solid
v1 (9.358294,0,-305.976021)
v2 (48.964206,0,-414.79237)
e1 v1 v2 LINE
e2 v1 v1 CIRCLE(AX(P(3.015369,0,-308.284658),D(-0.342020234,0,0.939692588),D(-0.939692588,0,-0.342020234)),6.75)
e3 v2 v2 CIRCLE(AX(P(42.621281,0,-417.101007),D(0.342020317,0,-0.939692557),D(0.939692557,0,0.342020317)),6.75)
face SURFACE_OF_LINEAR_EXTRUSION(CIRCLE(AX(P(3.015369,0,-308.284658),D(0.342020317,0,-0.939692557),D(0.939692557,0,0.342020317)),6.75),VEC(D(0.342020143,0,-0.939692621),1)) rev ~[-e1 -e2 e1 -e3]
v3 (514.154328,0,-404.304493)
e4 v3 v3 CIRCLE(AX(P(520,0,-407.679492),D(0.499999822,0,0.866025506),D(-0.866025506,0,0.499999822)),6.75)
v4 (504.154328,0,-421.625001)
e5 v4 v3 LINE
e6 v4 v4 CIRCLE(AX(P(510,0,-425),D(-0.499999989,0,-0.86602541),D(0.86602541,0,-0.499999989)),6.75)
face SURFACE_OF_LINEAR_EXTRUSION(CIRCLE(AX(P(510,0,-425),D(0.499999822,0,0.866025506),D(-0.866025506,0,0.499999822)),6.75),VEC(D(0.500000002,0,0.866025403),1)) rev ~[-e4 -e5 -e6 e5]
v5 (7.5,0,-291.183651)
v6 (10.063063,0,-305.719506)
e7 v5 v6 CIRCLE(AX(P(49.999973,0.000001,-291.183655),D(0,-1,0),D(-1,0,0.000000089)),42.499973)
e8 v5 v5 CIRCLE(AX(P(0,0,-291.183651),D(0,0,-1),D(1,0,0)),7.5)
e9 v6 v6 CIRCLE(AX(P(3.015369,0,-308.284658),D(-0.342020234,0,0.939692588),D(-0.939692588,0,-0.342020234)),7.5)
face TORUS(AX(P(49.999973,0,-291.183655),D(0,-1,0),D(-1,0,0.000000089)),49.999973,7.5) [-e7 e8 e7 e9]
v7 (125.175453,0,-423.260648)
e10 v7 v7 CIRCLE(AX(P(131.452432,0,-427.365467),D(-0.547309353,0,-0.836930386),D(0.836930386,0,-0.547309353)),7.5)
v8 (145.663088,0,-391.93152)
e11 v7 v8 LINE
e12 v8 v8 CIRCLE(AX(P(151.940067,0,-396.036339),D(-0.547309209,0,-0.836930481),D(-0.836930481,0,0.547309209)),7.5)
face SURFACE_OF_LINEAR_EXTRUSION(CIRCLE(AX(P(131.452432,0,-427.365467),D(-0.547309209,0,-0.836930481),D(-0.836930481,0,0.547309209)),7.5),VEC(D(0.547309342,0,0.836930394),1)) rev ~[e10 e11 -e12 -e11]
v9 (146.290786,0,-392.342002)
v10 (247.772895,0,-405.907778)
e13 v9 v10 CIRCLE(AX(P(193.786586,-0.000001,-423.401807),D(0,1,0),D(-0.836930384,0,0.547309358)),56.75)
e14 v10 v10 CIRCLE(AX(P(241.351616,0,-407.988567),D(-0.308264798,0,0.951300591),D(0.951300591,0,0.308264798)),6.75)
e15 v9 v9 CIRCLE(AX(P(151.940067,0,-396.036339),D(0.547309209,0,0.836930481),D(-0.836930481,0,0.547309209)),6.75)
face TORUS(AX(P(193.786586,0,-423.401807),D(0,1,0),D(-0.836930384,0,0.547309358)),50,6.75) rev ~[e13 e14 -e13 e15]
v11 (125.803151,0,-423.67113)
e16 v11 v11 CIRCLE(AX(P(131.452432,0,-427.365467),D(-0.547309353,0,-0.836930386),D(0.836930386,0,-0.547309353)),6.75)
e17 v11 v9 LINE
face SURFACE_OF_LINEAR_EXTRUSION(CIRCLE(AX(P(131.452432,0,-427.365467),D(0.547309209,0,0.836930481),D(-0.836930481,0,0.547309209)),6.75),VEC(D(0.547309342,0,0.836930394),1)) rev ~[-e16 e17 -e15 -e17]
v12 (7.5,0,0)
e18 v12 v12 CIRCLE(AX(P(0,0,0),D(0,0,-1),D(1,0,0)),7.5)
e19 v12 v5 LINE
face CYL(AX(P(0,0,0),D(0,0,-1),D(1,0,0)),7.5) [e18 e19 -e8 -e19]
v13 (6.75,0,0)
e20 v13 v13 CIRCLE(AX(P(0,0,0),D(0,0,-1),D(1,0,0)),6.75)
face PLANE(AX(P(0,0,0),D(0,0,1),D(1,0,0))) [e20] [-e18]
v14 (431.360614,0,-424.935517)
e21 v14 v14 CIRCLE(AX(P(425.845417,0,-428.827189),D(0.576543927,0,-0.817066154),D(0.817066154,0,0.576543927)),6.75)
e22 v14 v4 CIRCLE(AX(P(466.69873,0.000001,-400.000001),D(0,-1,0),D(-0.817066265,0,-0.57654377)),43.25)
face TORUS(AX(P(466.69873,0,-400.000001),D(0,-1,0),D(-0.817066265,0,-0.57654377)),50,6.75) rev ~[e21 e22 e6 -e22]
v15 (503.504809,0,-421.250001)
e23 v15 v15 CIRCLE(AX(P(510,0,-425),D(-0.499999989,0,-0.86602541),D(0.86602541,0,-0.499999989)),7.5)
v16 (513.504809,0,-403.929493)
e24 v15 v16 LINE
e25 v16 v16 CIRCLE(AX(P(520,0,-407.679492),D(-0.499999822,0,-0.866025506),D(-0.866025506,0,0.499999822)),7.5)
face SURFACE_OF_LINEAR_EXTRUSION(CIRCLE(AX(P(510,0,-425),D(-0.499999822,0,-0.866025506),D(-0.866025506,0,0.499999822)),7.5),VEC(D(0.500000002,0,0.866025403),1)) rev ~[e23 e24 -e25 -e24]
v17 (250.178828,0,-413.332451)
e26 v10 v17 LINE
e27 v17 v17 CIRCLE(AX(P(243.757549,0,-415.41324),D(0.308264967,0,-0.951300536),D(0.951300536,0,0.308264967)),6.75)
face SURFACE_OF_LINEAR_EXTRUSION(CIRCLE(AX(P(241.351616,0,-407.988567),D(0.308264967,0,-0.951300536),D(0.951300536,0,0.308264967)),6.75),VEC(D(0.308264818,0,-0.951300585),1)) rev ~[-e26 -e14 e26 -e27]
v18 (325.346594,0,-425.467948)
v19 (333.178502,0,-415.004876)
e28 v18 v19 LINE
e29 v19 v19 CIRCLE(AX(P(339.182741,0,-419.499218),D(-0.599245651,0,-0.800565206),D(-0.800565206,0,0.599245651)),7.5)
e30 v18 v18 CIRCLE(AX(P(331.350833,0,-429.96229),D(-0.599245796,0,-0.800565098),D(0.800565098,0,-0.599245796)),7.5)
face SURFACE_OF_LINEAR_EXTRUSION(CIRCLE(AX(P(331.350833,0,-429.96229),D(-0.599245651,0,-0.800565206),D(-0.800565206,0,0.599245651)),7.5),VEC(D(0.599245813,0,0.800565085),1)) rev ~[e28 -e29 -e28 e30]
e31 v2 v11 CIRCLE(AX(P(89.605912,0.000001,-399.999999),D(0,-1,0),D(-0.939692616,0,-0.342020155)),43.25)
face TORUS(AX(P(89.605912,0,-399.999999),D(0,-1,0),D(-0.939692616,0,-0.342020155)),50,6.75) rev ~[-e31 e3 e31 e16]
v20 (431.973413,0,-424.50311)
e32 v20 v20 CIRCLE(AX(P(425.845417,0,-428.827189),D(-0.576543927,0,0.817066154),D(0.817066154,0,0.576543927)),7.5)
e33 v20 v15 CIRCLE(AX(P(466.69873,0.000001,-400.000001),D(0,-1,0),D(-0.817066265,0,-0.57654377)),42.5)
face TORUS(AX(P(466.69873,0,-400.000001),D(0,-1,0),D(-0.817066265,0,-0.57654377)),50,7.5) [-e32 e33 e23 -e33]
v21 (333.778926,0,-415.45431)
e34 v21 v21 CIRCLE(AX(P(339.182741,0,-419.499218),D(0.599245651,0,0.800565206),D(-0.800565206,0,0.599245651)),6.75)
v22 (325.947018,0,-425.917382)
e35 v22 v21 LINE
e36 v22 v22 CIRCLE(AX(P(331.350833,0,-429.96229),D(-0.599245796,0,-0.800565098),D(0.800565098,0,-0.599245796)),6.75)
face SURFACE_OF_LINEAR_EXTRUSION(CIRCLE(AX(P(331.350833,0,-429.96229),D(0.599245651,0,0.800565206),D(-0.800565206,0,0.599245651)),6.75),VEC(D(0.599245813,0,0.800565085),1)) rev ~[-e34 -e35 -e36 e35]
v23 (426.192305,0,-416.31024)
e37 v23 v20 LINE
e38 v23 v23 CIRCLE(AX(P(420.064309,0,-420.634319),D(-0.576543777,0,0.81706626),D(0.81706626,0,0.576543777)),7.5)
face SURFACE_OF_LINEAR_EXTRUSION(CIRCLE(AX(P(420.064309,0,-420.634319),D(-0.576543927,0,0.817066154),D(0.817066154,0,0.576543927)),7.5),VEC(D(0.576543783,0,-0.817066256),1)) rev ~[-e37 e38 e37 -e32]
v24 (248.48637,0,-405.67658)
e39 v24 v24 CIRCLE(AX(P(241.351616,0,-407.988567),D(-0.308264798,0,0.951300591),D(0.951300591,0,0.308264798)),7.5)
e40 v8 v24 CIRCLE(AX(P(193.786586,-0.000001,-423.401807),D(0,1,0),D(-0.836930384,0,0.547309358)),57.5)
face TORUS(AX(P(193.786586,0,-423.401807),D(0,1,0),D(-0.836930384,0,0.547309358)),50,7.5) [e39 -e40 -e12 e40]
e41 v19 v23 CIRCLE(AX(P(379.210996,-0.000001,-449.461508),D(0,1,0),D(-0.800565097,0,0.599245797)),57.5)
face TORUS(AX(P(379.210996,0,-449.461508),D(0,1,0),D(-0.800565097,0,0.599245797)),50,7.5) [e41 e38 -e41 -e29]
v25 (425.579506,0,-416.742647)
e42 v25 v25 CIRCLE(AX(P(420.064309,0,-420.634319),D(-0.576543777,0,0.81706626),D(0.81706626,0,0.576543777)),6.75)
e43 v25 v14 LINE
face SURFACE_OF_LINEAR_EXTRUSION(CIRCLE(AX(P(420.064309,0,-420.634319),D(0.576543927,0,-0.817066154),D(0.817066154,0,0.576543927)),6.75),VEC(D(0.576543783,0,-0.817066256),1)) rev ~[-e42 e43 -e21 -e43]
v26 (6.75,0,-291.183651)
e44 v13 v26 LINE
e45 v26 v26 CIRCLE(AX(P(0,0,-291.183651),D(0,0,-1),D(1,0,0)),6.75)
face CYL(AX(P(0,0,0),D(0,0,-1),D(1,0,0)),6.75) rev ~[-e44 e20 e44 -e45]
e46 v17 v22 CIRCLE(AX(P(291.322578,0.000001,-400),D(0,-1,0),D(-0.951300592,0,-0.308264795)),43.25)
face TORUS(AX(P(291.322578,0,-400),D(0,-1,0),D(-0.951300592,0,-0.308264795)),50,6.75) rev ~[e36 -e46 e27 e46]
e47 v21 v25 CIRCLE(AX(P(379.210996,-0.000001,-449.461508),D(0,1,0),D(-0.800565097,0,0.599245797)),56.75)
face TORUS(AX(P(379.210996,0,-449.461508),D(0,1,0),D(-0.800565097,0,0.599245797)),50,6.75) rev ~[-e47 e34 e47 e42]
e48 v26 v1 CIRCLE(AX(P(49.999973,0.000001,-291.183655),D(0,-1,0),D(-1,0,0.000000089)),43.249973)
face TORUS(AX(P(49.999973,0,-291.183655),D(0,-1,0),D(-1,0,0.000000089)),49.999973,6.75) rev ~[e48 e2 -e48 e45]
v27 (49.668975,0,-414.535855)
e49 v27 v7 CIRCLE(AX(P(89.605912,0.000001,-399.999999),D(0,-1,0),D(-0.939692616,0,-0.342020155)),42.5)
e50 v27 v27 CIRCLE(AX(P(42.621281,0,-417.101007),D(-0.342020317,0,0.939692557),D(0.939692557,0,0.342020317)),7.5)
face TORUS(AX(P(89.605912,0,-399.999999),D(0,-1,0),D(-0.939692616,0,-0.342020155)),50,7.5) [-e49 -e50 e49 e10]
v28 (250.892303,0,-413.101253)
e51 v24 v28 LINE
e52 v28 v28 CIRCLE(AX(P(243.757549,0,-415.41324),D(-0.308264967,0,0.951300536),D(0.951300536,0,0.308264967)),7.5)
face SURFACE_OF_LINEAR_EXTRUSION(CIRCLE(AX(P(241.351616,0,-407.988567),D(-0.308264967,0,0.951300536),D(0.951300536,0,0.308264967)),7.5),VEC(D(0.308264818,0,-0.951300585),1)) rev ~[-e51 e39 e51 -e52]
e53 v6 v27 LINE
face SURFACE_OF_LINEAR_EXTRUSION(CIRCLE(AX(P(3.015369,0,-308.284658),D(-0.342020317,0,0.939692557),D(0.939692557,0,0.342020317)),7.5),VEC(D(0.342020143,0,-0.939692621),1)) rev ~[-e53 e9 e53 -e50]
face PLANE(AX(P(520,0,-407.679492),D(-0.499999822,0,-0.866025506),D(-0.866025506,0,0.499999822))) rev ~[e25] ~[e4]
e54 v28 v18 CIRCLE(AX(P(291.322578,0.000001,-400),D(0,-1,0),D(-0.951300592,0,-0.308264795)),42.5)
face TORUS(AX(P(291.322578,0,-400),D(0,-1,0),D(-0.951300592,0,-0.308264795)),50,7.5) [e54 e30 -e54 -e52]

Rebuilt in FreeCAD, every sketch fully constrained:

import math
import FreeCAD as App
import Part
import Sketcher
Q = App.Units.Quantity

doc = App.newDocument("Part")
body = doc.addObject("PartDesign::Body", "Body")

# Sketch on XY plane
sketch1 = doc.addObject("Sketcher::SketchObject", "Sketch")
body.addObject(sketch1)
sketch1.AttachmentSupport = (doc.XY_Plane, [""])
sketch1.MapMode = "FlatFace"
sketch1.addGeometry([
    Part.Circle(App.Vector(0, 0, 0), App.Vector(0, 0, 1), 8),
    Part.Circle(App.Vector(0, 0, 0), App.Vector(0, 0, 1), 7),
], False)
sketch1.addConstraint([
    Sketcher.Constraint("Coincident", 0, 3, -1, 1),
    Sketcher.Constraint("Coincident", 1, 3, -1, 1),
    Sketcher.Constraint("Diameter", 0, Q("15 mm")),
    Sketcher.Constraint("Diameter", 1, Q("13.5 mm")),
])

# Sketch on XZ plane
sketch2 = doc.addObject("Sketcher::SketchObject", "Sketch001")
body.addObject(sketch2)
sketch2.AttachmentSupport = (doc.XZ_Plane, [""])
sketch2.MapMode = "FlatFace"
sketch2.addGeometry([
    Part.LineSegment(App.Vector(0, 0, 0), App.Vector(0, -291, 0)),  # 0
    Part.ArcOfCircle(Part.Circle(App.Vector(50, -291, 0), App.Vector(0, 0, 1), 50), math.radians(180), math.radians(200)),  # 1
    Part.LineSegment(App.Vector(3, -308, 0), App.Vector(43, -417, 0)),  # 2
    Part.ArcOfCircle(Part.Circle(App.Vector(90, -400, 0), App.Vector(0, 0, 1), 50), math.radians(-160), math.radians(-33)),  # 3
    Part.LineSegment(App.Vector(131, -427, 0), App.Vector(152, -396, 0)),  # 4
    Part.ArcOfCircle(Part.Circle(App.Vector(194, -423, 0), App.Vector(0, 0, 1), 50), math.radians(18), math.radians(147)),  # 5
    Part.LineSegment(App.Vector(241, -408, 0), App.Vector(244, -415, 0)),  # 6
    Part.ArcOfCircle(Part.Circle(App.Vector(291, -400, 0), App.Vector(0, 0, 1), 50), math.radians(-162), math.radians(-37)),  # 7
    Part.LineSegment(App.Vector(331, -430, 0), App.Vector(339, -419, 0)),  # 8
    Part.ArcOfCircle(Part.Circle(App.Vector(379, -449, 0), App.Vector(0, 0, 1), 50), math.radians(35), math.radians(143)),  # 9
    Part.LineSegment(App.Vector(420, -421, 0), App.Vector(426, -429, 0)),  # 10
    Part.ArcOfCircle(Part.Circle(App.Vector(467, -400, 0), App.Vector(0, 0, 1), 50), math.radians(-145), math.radians(-30)),  # 11
    Part.LineSegment(App.Vector(510, -425, 0), App.Vector(520, -408, 0)),  # 12
], False)
sketch2.addConstraint([
    Sketcher.Constraint("Tangent", 0, 2, 1, 1),
    Sketcher.Constraint("Tangent", 1, 2, 2, 1),
    Sketcher.Constraint("Tangent", 2, 2, 3, 1),
    Sketcher.Constraint("Tangent", 3, 2, 4, 1),
    Sketcher.Constraint("Tangent", 4, 2, 5, 2),
    Sketcher.Constraint("Tangent", 5, 1, 6, 1),
    Sketcher.Constraint("Tangent", 6, 2, 7, 1),
    Sketcher.Constraint("Tangent", 7, 2, 8, 1),
    Sketcher.Constraint("Tangent", 8, 2, 9, 2),
    Sketcher.Constraint("Tangent", 9, 1, 10, 1),
    Sketcher.Constraint("Tangent", 10, 2, 11, 1),
    Sketcher.Constraint("Tangent", 11, 2, 12, 1),
    Sketcher.Constraint("Vertical", 0),
    Sketcher.Constraint("Coincident", 0, 1, -1, 1),
    Sketcher.Constraint("Equal", 3, 5),
    Sketcher.Constraint("Equal", 5, 7),
    Sketcher.Constraint("Equal", 7, 9),
    Sketcher.Constraint("Equal", 9, 11),
    Sketcher.Constraint("Horizontal", 3, 3, 7, 3),
    Sketcher.Constraint("Horizontal", 7, 3, 11, 3),
    Sketcher.Constraint("Radius", 3, Q("50 mm")),
    Sketcher.Constraint("Angle", 2, Q("-70 deg")),
    Sketcher.Constraint("Angle", 12, Q("60 deg")),
    Sketcher.Constraint("Distance", 12, Q("20 mm")),
    Sketcher.Constraint("DistanceY", 3, 3, -1, 1, Q("399.999999 mm")),
    Sketcher.Constraint("DistanceX", -1, 1, 11, 2, Q("510 mm")),
    Sketcher.Constraint("Radius", 1, Q("49.999973 mm")),
    Sketcher.Constraint("DistanceY", 0, 2, 0, 1, Q("291.183651 mm")),
    Sketcher.Constraint("DistanceY", 9, 3, 5, 3, Q("26.059701 mm")),
    Sketcher.Constraint("DistanceY", 5, 3, 2, 2, Q("6.3008 mm")),
    Sketcher.Constraint("DistanceY", 3, 2, 5, 1, Q("19.3769 mm")),
    Sketcher.Constraint("DistanceY", 9, 1, 8, 2, Q("1.135101 mm")),
    Sketcher.Constraint("Distance", 6, Q("7.80476 mm")),
])
doc.recompute()

additivepipe = doc.addObject("PartDesign::AdditivePipe", "AdditivePipe")
body.addObject(additivepipe)
additivepipe.Profile = sketch1
additivepipe.Spine = (sketch2, ["Edge1", "Edge2", "Edge3", "Edge4", "Edge5", "Edge6", "Edge7", "Edge8", "Edge9", "Edge10", "Edge11", "Edge12", "Edge13"])

doc.recompute()
